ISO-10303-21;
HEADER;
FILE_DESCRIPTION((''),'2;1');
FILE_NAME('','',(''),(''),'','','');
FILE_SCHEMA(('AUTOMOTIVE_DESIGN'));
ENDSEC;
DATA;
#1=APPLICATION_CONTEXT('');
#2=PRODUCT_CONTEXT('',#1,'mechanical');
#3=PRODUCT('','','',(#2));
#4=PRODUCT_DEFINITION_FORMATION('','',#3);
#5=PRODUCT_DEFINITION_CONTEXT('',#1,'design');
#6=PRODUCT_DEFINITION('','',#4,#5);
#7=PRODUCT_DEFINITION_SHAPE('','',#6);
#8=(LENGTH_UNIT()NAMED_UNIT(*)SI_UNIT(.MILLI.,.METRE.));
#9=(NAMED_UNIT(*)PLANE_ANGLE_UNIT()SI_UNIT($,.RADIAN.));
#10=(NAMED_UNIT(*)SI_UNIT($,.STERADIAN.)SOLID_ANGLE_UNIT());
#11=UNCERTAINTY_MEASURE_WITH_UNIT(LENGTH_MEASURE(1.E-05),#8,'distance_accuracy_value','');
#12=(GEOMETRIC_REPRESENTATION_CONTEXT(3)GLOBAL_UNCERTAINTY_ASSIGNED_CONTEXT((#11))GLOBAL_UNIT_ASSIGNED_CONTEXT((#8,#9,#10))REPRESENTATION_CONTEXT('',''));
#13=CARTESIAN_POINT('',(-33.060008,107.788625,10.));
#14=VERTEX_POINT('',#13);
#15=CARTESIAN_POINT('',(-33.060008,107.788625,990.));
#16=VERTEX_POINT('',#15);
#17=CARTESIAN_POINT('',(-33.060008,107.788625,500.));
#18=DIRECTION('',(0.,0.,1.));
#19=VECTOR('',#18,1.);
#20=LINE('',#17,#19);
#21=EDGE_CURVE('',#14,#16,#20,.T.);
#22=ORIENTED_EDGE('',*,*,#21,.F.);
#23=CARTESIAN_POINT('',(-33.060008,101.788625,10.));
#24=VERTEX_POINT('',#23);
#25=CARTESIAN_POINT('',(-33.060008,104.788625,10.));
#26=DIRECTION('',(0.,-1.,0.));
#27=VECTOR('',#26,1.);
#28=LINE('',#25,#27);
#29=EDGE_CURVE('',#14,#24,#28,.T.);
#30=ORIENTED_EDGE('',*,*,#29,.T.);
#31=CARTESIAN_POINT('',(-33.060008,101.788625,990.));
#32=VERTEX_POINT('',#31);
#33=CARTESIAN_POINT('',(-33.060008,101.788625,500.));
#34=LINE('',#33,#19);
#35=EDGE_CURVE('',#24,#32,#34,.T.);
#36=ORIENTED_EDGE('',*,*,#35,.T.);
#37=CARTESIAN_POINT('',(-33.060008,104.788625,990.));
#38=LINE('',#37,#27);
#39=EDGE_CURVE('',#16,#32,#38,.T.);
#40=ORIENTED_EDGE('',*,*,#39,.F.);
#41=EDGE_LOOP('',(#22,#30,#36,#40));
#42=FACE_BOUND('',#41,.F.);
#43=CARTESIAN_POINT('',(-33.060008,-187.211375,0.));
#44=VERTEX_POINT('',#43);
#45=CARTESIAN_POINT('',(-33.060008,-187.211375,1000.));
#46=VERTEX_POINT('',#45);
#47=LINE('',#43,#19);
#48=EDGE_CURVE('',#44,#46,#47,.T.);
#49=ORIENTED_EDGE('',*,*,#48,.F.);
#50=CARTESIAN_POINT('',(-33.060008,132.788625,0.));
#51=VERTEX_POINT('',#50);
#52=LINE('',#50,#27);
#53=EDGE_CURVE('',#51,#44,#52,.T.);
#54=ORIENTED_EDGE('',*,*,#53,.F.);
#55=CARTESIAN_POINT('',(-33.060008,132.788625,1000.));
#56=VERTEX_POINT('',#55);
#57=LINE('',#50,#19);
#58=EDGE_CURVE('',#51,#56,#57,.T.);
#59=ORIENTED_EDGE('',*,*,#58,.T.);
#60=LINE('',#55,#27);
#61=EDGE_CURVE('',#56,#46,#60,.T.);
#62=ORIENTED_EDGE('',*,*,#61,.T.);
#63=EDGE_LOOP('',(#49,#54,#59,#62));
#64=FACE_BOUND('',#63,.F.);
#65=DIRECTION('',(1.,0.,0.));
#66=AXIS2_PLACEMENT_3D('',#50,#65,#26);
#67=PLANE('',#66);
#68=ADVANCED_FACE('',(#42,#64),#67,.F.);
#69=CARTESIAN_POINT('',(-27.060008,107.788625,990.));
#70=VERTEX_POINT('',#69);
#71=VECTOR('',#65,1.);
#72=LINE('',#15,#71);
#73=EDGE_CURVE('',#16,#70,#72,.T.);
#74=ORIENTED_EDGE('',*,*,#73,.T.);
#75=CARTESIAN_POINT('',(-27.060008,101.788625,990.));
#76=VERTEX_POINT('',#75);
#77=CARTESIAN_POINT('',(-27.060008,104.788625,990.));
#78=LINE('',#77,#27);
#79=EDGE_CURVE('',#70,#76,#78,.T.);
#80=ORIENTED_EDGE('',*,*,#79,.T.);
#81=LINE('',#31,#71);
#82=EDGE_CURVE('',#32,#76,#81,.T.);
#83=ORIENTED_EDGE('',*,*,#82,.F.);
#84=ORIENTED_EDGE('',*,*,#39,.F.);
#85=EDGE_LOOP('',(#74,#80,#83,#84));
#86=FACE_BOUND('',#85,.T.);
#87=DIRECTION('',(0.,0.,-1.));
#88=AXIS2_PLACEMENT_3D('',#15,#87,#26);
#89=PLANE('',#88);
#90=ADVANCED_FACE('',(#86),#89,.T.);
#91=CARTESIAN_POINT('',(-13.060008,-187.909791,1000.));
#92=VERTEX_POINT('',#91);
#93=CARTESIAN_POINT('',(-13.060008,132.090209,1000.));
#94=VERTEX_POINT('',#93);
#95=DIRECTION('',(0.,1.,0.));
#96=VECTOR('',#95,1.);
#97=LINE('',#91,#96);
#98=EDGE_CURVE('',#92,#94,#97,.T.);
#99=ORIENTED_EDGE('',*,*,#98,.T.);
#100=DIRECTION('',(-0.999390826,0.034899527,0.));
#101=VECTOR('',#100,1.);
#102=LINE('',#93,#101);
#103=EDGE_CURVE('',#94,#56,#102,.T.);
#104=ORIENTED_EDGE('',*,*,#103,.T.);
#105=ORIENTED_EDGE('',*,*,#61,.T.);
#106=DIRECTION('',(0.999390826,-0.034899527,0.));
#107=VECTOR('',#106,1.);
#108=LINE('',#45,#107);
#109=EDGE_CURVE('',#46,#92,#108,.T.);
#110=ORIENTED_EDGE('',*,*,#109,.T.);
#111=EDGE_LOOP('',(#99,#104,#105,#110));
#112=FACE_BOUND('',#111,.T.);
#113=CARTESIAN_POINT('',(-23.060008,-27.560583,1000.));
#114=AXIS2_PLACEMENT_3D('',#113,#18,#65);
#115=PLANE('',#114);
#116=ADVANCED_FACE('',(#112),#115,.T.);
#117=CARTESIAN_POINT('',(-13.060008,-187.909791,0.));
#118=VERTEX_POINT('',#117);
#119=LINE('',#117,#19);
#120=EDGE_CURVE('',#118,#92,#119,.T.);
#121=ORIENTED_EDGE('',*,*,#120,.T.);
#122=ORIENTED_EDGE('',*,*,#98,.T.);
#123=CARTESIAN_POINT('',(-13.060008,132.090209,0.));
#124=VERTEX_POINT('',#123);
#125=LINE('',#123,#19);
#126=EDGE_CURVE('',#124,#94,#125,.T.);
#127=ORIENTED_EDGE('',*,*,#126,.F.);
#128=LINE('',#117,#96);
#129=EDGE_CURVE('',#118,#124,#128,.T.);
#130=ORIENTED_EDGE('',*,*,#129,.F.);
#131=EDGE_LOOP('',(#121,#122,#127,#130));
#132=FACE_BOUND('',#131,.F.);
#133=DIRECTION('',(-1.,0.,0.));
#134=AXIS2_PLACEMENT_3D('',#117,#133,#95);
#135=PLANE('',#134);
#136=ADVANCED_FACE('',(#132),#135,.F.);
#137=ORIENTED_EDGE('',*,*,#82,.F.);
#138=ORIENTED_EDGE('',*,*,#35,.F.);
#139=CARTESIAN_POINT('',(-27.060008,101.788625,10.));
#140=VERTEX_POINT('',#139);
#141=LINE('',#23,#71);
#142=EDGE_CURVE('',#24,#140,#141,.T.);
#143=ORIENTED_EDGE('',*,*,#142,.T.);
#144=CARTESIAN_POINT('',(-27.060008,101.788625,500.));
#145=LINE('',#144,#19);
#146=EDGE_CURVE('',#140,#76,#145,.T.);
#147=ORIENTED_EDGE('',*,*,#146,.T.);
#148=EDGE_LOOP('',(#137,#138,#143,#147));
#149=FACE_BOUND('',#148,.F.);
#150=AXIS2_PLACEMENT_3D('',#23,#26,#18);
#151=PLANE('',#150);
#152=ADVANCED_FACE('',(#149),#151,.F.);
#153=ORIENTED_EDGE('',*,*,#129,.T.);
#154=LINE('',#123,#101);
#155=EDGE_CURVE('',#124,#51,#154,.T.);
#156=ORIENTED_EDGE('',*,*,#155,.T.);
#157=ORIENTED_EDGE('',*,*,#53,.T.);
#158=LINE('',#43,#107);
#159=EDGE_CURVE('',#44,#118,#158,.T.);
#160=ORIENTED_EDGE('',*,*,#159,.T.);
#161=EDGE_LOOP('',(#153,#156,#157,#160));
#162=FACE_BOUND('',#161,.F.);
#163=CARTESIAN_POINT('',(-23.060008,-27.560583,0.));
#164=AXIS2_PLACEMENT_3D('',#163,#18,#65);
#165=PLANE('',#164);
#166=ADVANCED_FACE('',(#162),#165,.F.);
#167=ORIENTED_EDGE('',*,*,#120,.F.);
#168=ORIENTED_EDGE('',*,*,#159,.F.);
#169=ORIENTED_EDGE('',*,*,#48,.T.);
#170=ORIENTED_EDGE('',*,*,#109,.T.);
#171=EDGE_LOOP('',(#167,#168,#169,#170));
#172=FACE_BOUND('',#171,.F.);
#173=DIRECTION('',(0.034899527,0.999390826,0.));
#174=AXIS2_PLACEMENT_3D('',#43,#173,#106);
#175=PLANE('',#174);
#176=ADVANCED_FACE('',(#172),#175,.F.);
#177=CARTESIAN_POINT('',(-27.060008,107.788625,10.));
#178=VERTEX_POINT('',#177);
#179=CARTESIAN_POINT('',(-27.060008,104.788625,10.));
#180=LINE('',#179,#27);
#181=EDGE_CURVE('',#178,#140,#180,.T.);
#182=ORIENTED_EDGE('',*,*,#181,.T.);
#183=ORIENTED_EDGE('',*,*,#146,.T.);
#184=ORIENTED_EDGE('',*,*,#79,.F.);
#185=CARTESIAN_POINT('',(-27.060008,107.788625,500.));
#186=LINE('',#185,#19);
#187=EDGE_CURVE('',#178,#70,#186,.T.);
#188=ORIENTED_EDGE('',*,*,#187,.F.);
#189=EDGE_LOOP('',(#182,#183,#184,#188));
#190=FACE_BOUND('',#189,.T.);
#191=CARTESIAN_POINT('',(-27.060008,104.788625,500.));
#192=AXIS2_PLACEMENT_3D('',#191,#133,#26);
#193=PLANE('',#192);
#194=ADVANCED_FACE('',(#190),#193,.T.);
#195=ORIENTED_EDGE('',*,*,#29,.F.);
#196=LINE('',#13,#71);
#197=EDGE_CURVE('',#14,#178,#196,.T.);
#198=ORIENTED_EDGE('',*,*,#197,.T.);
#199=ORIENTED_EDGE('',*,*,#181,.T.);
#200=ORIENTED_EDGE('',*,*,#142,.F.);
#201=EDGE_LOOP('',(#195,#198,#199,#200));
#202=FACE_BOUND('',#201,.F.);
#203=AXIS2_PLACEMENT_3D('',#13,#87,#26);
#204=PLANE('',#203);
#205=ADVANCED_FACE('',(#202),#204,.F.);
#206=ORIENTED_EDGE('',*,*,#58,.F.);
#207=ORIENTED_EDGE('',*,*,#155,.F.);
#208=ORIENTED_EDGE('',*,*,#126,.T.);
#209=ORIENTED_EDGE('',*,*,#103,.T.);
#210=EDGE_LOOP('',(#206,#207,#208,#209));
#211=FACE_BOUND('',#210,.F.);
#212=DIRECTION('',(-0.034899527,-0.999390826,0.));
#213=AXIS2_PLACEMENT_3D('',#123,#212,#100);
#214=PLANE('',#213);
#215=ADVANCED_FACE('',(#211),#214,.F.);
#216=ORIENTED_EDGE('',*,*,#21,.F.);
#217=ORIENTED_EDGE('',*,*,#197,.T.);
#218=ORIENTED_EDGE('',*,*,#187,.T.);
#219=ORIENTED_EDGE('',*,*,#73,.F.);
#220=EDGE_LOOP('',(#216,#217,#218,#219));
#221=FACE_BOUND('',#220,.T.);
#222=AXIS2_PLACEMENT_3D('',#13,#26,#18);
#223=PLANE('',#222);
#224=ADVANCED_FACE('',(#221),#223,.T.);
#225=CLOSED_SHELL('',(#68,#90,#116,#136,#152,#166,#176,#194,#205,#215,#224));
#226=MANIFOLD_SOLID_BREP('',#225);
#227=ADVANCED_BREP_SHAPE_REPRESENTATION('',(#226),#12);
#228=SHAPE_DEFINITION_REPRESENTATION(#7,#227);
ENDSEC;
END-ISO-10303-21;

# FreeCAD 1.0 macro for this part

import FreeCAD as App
import Part
import Sketcher
from FreeCAD import Vector
Q = App.Units.Quantity


def add_polygon(sketch, points):
    """Adds a closed chain of lines whose ends are joined by coincident constraints."""
    first, n = sketch.GeometryCount, len(points)
    for a, b in zip(points, points[1:] + points[:1]):
        sketch.addGeometry(Part.LineSegment(App.Vector(*a, 0), App.Vector(*b, 0)), False)
    for i in range(n):
        sketch.addConstraint(Sketcher.Constraint("Coincident", first + i, 2, first + (i + 1) % n, 1))

doc = App.newDocument("Part")
params = doc.addObject("Spreadsheet::Sheet", "Params")
for row, (alias, value) in enumerate([
    ("sketch1_height", "320 mm"),
    ("pad1_length", "1000 mm"),
    ("sketch2_width", "6 mm"),
    ("sketch2_height", "980 mm"),
    ("pocket1_length", "6 mm"),
], start=1):
    params.set(f"A{row}", alias)
    params.set(f"B{row}", "=" + value)
    params.setAlias(f"B{row}", alias)

body = doc.addObject("PartDesign::Body", "Body")

# Sketch on XY plane
sketch1 = body.newObject("Sketcher::SketchObject", "Sketch")
sketch1.AttachmentSupport = (doc.getObject("XY_Plane"), [""])
sketch1.MapMode = "FlatFace"
add_polygon(sketch1, [(-13, -188), (-13, 132), (-33, 133), (-33, -187)])  # lines 0-3
sketch1.addConstraint([
    Sketcher.Constraint("Vertical", 0),
    Sketcher.Constraint("Vertical", 2),
    Sketcher.Constraint("Parallel", 1, 3),
    Sketcher.Constraint("DistanceY", 0, 1, 0, 2, Q("320 mm")),
    Sketcher.Constraint("Angle", 1, Q("177.999998 deg")),
    Sketcher.Constraint("DistanceX", 1, 2, 0, 2, Q("20 mm")),
    Sketcher.Constraint("DistanceY", -1, 1, 0, 2, Q("132.090209 mm")),
    Sketcher.Constraint("DistanceX", 1, 2, -1, 1, Q("33.060008 mm")),
])
sketch1.setExpression("Constraints[7]", "Params.sketch1_height")
pad1 = body.newObject("PartDesign::Pad", "Pad")
pad1.Profile = sketch1
pad1.setExpression("Length", "Params.pad1_length")

# Sketch on YZ plane
sketch2 = body.newObject("Sketcher::SketchObject", "Sketch001")
sketch2.AttachmentSupport = (doc.getObject("YZ_Plane"), [""])
sketch2.MapMode = "FlatFace"
sketch2.AttachmentOffset = App.Placement(Vector(0, 0, -33.060008), App.Rotation())
add_polygon(sketch2, [(108, 990), (108, 10), (102, 10), (102, 990)])  # lines 0-3
sketch2.addConstraint([
    Sketcher.Constraint("Vertical", 0),
    Sketcher.Constraint("Horizontal", 1),
    Sketcher.Constraint("Vertical", 2),
    Sketcher.Constraint("Horizontal", 3),
    Sketcher.Constraint("DistanceX", 1, 2, 1, 1, Q("6 mm")),
    Sketcher.Constraint("DistanceY", 0, 2, 0, 1, Q("980 mm")),
    Sketcher.Constraint("DistanceY", -1, 1, 0, 2, Q("10 mm")),
    Sketcher.Constraint("DistanceX", -1, 1, 0, 2, Q("107.788625 mm")),
])
sketch2.setExpression("Constraints[8]", "Params.sketch2_width")
sketch2.setExpression("Constraints[9]", "Params.sketch2_height")
pocket1 = body.newObject("PartDesign::Pocket", "Pocket")
pocket1.Profile = sketch2
pocket1.setExpression("Length", "Params.pocket1_length")
pocket1.Reversed = True

doc.recompute()
